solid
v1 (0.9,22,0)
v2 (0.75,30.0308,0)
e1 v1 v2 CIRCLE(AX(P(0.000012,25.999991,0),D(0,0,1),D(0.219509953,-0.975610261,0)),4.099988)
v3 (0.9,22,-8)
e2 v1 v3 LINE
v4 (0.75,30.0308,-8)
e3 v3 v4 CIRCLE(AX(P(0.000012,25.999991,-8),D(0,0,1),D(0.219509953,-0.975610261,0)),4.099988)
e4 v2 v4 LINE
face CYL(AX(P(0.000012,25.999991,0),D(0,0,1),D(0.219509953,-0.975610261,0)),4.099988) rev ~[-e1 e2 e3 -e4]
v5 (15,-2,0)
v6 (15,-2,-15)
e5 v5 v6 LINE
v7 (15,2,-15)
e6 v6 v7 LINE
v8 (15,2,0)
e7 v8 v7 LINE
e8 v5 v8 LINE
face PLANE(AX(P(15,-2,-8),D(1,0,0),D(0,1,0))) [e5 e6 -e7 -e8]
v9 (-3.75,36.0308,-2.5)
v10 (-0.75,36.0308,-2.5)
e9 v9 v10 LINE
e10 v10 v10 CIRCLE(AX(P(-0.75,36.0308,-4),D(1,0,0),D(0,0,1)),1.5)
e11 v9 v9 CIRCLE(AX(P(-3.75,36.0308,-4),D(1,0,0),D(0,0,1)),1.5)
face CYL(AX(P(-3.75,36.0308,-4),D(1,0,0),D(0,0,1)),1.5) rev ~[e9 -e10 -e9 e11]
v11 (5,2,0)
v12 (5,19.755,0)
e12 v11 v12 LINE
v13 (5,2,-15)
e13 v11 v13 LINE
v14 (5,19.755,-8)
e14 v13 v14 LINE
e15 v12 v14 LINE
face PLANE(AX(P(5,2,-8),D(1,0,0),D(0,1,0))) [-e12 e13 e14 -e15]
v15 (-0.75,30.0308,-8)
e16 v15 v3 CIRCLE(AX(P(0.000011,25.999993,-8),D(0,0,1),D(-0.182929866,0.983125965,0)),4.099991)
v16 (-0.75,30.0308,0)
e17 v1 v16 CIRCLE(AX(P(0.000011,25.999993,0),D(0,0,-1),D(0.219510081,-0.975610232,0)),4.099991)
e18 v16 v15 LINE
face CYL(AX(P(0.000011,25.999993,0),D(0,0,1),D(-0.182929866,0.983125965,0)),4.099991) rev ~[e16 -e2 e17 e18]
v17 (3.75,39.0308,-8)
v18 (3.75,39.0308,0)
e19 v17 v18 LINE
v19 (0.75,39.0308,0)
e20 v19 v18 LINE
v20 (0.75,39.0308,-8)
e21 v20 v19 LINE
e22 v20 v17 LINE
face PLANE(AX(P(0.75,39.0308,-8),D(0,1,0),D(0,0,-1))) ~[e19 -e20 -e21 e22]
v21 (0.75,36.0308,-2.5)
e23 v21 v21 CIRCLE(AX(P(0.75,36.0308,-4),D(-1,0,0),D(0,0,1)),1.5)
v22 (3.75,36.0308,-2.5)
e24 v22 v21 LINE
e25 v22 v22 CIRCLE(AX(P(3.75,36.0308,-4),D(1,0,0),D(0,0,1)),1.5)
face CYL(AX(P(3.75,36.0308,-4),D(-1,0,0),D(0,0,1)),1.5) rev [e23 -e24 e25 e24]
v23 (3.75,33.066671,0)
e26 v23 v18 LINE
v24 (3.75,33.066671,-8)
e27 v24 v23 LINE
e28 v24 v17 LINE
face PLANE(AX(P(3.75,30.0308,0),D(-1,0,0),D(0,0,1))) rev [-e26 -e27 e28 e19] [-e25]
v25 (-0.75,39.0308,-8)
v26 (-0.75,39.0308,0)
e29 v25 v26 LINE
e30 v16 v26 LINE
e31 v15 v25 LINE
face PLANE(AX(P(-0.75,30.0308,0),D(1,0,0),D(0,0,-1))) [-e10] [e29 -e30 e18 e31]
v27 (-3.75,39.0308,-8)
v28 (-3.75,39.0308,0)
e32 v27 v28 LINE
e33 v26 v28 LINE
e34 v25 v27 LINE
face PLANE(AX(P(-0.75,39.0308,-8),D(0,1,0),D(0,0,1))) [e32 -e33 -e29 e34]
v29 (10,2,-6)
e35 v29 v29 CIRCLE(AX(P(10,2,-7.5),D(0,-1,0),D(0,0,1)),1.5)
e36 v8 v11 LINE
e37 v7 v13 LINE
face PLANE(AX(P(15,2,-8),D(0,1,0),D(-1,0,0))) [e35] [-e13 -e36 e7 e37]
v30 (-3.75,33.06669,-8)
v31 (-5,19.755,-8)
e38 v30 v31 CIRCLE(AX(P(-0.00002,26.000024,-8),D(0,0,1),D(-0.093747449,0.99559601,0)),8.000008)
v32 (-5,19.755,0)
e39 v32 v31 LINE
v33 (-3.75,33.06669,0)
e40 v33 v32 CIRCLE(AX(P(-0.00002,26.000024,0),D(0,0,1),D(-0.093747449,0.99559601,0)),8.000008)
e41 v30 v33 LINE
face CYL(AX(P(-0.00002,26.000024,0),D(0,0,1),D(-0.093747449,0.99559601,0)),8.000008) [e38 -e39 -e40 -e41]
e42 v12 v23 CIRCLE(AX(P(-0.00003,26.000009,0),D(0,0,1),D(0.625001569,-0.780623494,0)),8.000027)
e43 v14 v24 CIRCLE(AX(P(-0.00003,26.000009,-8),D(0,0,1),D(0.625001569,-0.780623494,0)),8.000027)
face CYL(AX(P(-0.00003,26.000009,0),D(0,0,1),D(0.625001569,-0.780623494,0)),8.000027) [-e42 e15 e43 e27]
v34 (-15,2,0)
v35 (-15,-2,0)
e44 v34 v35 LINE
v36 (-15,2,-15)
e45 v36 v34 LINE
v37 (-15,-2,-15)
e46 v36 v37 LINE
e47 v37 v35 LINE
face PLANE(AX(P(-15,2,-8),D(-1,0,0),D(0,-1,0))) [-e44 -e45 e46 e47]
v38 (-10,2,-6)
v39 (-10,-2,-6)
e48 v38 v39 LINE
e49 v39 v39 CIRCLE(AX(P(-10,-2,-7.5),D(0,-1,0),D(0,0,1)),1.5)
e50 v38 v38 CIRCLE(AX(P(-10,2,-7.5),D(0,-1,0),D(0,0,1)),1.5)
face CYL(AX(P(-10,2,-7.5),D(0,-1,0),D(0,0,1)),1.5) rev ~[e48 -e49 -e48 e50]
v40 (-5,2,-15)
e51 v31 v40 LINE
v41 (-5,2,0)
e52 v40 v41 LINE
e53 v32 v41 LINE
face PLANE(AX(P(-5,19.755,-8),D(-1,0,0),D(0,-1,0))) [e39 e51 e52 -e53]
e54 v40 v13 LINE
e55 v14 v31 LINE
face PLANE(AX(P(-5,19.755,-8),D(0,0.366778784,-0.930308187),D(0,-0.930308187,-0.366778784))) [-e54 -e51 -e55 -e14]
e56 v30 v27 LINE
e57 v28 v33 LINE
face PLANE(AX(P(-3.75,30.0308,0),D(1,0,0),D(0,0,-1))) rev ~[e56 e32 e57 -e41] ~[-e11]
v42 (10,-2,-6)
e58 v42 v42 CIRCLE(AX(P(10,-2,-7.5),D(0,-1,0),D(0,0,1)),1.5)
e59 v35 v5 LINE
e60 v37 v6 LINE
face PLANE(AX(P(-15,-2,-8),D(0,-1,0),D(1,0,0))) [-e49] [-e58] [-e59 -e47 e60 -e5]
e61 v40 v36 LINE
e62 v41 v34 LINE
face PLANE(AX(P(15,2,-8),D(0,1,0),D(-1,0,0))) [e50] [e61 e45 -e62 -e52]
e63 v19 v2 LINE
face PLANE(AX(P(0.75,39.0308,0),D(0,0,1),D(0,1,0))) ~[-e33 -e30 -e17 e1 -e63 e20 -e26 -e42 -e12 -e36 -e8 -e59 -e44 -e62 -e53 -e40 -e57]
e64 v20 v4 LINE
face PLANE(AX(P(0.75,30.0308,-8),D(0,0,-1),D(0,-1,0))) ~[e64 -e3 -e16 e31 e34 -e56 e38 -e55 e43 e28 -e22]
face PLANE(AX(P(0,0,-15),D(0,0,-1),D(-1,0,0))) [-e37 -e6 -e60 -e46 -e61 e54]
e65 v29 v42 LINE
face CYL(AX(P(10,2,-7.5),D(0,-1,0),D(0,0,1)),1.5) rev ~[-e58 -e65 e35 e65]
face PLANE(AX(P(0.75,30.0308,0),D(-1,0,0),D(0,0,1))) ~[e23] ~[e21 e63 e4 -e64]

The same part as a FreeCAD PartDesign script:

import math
import FreeCAD as App
import Part
import Sketcher
from FreeCAD import Vector
Q = App.Units.Quantity

doc = App.newDocument("Part")
body = doc.addObject("PartDesign::Body", "Body")

sketch1 = doc.addObject("Sketcher::SketchObject", "Sketch")
body.addObject(sketch1)
sketch1.AttachmentSupport = (doc.XY_Plane, [""])
sketch1.MapMode = "FlatFace"
sketch1.addGeometry([
    Part.LineSegment(Vector(-15, 2, 0), Vector(-15, -2, 0)),
    Part.LineSegment(Vector(-15, -2, 0), Vector(15, -2, 0)),
    Part.LineSegment(Vector(15, -2, 0), Vector(15, 2, 0)),
    Part.LineSegment(Vector(15, 2, 0), Vector(5, 2, 0)),
    Part.LineSegment(Vector(5, 2, 0), Vector(5, 19.755, 0)),
    Part.ArcOfCircle(Part.Circle(Vector(0, 26, 0), Vector(0, 0, 1), 8.000034), math.radians(-51.317822), math.radians(84.620644)),
    Part.LineSegment(Vector(0.75, 33.9648, 0), Vector(0.75, 30.0308, 0)),
    Part.ArcOfCircle(Part.Circle(Vector(0, 26, 0), Vector(0, 0, 1), 4.099982), math.radians(-77.319617), math.radians(79.459666)),
    Part.ArcOfCircle(Part.Circle(Vector(0, 26, 0), Vector(0, 0, 1), 4.099982), math.radians(100.540334), math.radians(282.680383)),
    Part.LineSegment(Vector(-0.75, 30.0308, 0), Vector(-0.75, 33.9648, 0)),
    Part.ArcOfCircle(Part.Circle(Vector(0, 26, 0), Vector(0, 0, 1), 8.000002), math.radians(95.379356), math.radians(231.317822)),
    Part.LineSegment(Vector(-5, 19.755, 0), Vector(-5, 2, 0)),
    Part.LineSegment(Vector(-5, 2, 0), Vector(-15, 2, 0)),
], False)
sketch1.addConstraint([
    Sketcher.Constraint("Coincident", 0, 2, 1, 1),
    Sketcher.Constraint("Coincident", 1, 2, 2, 1),
    Sketcher.Constraint("Coincident", 2, 2, 3, 1),
    Sketcher.Constraint("Coincident", 3, 2, 4, 1),
    Sketcher.Constraint("Coincident", 4, 2, 5, 1),
    Sketcher.Constraint("Coincident", 5, 2, 6, 1),
    Sketcher.Constraint("Coincident", 6, 2, 7, 2),
    Sketcher.Constraint("Tangent", 7, 1, 8, 2),
    Sketcher.Constraint("Coincident", 8, 1, 9, 1),
    Sketcher.Constraint("Coincident", 9, 2, 10, 1),
    Sketcher.Constraint("Coincident", 10, 2, 11, 1),
    Sketcher.Constraint("Coincident", 11, 2, 12, 1),
    Sketcher.Constraint("Coincident", 12, 2, 0, 1),
    Sketcher.Constraint("Vertical", 0),
    Sketcher.Constraint("Horizontal", 1),
    Sketcher.Constraint("Vertical", 2),
    Sketcher.Constraint("Horizontal", 3),
    Sketcher.Constraint("Vertical", 4),
    Sketcher.Constraint("Vertical", 6),
    Sketcher.Constraint("Vertical", 9),
    Sketcher.Constraint("Vertical", 11),
    Sketcher.Constraint("Horizontal", 12),
    Sketcher.Constraint("Coincident", 7, 3, 5, 3),
    Sketcher.Constraint("Coincident", 10, 3, 5, 3),
    Sketcher.Constraint("Equal", 7, 8),
    Sketcher.Constraint("Equal", 5, 10),
    Sketcher.Constraint("Symmetric", 0, 2, 2, 2, -1, 1),
    Sketcher.Constraint("Symmetric", 6, 2, 8, 1, -2),
    Sketcher.Constraint("Symmetric", 3, 2, 11, 2, -2),
    Sketcher.Constraint("Radius", 5, Q("8 mm")),
    Sketcher.Constraint("Radius", 7, Q("4.1 mm")),
    Sketcher.Constraint("DistanceX", 1, 1, 1, 2, Q("30 mm")),
    Sketcher.Constraint("DistanceX", 3, 2, 3, 1, Q("10 mm")),
    Sketcher.Constraint("DistanceY", 0, 2, 0, 1, Q("4 mm")),
    Sketcher.Constraint("DistanceY", 7, 1, 5, 3, Q("4 mm")),
    Sketcher.Constraint("DistanceY", 12, 2, 7, 1, Q("20 mm")),
    Sketcher.Constraint("DistanceX", 8, 1, 6, 2, Q("1.5 mm")),
])
pad1 = doc.addObject("PartDesign::Pad", "Pad")
body.addObject(pad1)
pad1.Profile = sketch1
pad1.Length = 8
pad1.Reversed = True

sketch2 = doc.addObject("Sketcher::SketchObject", "Sketch001")
body.addObject(sketch2)
sketch2.AttachmentSupport = (doc.XY_Plane, [""])
sketch2.MapMode = "FlatFace"
sketch2.AttachmentOffset = App.Placement(Vector(0, 0, -8), App.Rotation())
sketch2.addGeometry([
    Part.LineSegment(Vector(-15, 2, 0), Vector(15, 2, 0)),
    Part.LineSegment(Vector(15, 2, 0), Vector(15, -2, 0)),
    Part.LineSegment(Vector(15, -2, 0), Vector(-15, -2, 0)),
    Part.LineSegment(Vector(-15, -2, 0), Vector(-15, 2, 0)),
], False)
sketch2.addConstraint([
    Sketcher.Constraint("Coincident", 0, 2, 1, 1),
    Sketcher.Constraint("Coincident", 1, 2, 2, 1),
    Sketcher.Constraint("Coincident", 2, 2, 3, 1),
    Sketcher.Constraint("Coincident", 3, 2, 0, 1),
    Sketcher.Constraint("Horizontal", 0),
    Sketcher.Constraint("Vertical", 1),
    Sketcher.Constraint("Horizontal", 2),
    Sketcher.Constraint("Vertical", 3),
    Sketcher.Constraint("Symmetric", 0, 2, 2, 2, -1, 1),
    Sketcher.Constraint("DistanceX", 0, 1, 0, 2, Q("30 mm")),
    Sketcher.Constraint("DistanceY", 1, 2, 1, 1, Q("4 mm")),
])
pad2 = doc.addObject("PartDesign::Pad", "Pad001")
body.addObject(pad2)
pad2.Profile = sketch2
pad2.Length = 7
pad2.Reversed = True

sketch3 = doc.addObject("Sketcher::SketchObject", "Sketch002")
body.addObject(sketch3)
sketch3.AttachmentSupport = (doc.YZ_Plane, [""])
sketch3.MapMode = "FlatFace"
sketch3.AttachmentOffset = App.Placement(Vector(0, 0, -0.75), App.Rotation())
sketch3.addGeometry([
    Part.LineSegment(Vector(39.0308, 0, 0), Vector(30.0308, 0, 0)),
    Part.LineSegment(Vector(30.0308, 0, 0), Vector(30.0308, -8, 0)),
    Part.LineSegment(Vector(30.0308, -8, 0), Vector(39.0308, -8, 0)),
    Part.LineSegment(Vector(39.0308, -8, 0), Vector(39.0308, 0, 0)),
], False)
sketch3.addConstraint([
    Sketcher.Constraint("Coincident", 0, 2, 1, 1),
    Sketcher.Constraint("Coincident", 1, 2, 2, 1),
    Sketcher.Constraint("Coincident", 2, 2, 3, 1),
    Sketcher.Constraint("Coincident", 3, 2, 0, 1),
    Sketcher.Constraint("Horizontal", 0),
    Sketcher.Constraint("Vertical", 1),
    Sketcher.Constraint("Horizontal", 2),
    Sketcher.Constraint("Vertical", 3),
    Sketcher.Constraint("PointOnObject", 0, 2, -1),
    Sketcher.Constraint("DistanceX", 0, 2, 0, 1, Q("9 mm")),
    Sketcher.Constraint("DistanceY", 1, 2, 1, 1, Q("8 mm")),
    Sketcher.Constraint("DistanceX", -1, 1, 0, 2, Q("30.0308 mm")),
])
pad3 = doc.addObject("PartDesign::Pad", "Pad002")
body.addObject(pad3)
pad3.Profile = sketch3
pad3.Length = 3
pad3.Reversed = True

sketch4 = doc.addObject("Sketcher::SketchObject", "Sketch003")
body.addObject(sketch4)
sketch4.AttachmentSupport = (doc.YZ_Plane, [""])
sketch4.MapMode = "FlatFace"
sketch4.AttachmentOffset = App.Placement(Vector(0, 0, -3.75), App.Rotation())
sketch4.addGeometry(Part.Circle(Vector(36.0308, -4, 0), Vector(0, 0, 1), 1.5), False)
sketch4.addConstraint([
    Sketcher.Constraint("Diameter", 0, Q("3 mm")),
    Sketcher.Constraint("DistanceY", 0, 3, -1, 1, Q("4 mm")),
    Sketcher.Constraint("DistanceX", -1, 1, 0, 3, Q("36.0308 mm")),
])
doc.recompute()
hole = doc.addObject("PartDesign::Hole", "Hole")
body.addObject(hole)
hole.Profile = sketch4
hole.ThreadType = "None"
hole.Diameter = 3
hole.DepthType = "Dimension"
hole.Depth = 8
hole.DrillPoint = "Angled"
hole.DrillPointAngle = 118
hole.Reversed = True
doc.recompute()

mirrored = doc.addObject("PartDesign::Mirrored", "Mirrored")
body.addObject(mirrored)
mirrored.Originals = [pad3, hole]
mirrored.MirrorPlane = (doc.YZ_Plane, [""])
body.Tip = mirrored

sketch5 = doc.addObject("Sketcher::SketchObject", "Sketch004")
body.addObject(sketch5)
sketch5.AttachmentSupport = (doc.XY_Plane, [""])
sketch5.MapMode = "FlatFace"
sketch5.AttachmentOffset = App.Placement(Vector(0, 0, -8), App.Rotation())
sketch5.addGeometry([
    Part.LineSegment(Vector(-5, 19.755, 0), Vector(5, 19.755, 0)),
    Part.LineSegment(Vector(5, 19.755, 0), Vector(5, 2, 0)),
    Part.LineSegment(Vector(5, 2, 0), Vector(-5, 2, 0)),
    Part.LineSegment(Vector(-5, 2, 0), Vector(-5, 19.755, 0)),
], False)
sketch5.addConstraint([
    Sketcher.Constraint("Coincident", 0, 2, 1, 1),
    Sketcher.Constraint("Coincident", 1, 2, 2, 1),
    Sketcher.Constraint("Coincident", 2, 2, 3, 1),
    Sketcher.Constraint("Coincident", 3, 2, 0, 1),
    Sketcher.Constraint("Horizontal", 0),
    Sketcher.Constraint("Vertical", 1),
    Sketcher.Constraint("Horizontal", 2),
    Sketcher.Constraint("Vertical", 3),
    Sketcher.Constraint("DistanceX", 0, 1, 0, 2, Q("10 mm")),
    Sketcher.Constraint("DistanceX", -1, 1, 0, 2, Q("5 mm")),
    Sketcher.Constraint("DistanceY", -1, 1, 1, 2, Q("2 mm")),
    Sketcher.Constraint("DistanceY", 1, 2, 1, 1, Q("17.755 mm")),
])
pad4 = doc.addObject("PartDesign::Pad", "Pad003")
body.addObject(pad4)
pad4.Profile = sketch5
pad4.Length = 7
pad4.Reversed = True

sketch6 = doc.addObject("Sketcher::SketchObject", "Sketch005")
body.addObject(sketch6)
sketch6.AttachmentSupport = (doc.YZ_Plane, [""])
sketch6.MapMode = "FlatFace"
sketch6.AttachmentOffset = App.Placement(Vector(0, 0, -5), App.Rotation())
sketch6.addGeometry([
    Part.LineSegment(Vector(2, -15, 0), Vector(19.755, -8, 0)),
    Part.LineSegment(Vector(19.755, -8, 0), Vector(19.755, -15, 0)),
    Part.LineSegment(Vector(19.755, -15, 0), Vector(2, -15, 0)),
], False)
sketch6.addConstraint([
    Sketcher.Constraint("Coincident", 0, 2, 1, 1),
    Sketcher.Constraint("Coincident", 1, 2, 2, 1),
    Sketcher.Constraint("Coincident", 2, 2, 0, 1),
    Sketcher.Constraint("Vertical", 1),
    Sketcher.Constraint("Horizontal", 2),
    Sketcher.Constraint("DistanceY", 1, 2, 1, 1, Q("7 mm")),
    Sketcher.Constraint("DistanceY", 0, 2, -1, 1, Q("8 mm")),
    Sketcher.Constraint("DistanceX", -1, 1, 2, 2, Q("2 mm")),
    Sketcher.Constraint("DistanceX", 2, 2, 2, 1, Q("17.755 mm")),
])
pocket1 = doc.addObject("PartDesign::Pocket", "Pocket")
body.addObject(pocket1)
pocket1.Profile = sketch6
pocket1.Type = "ThroughAll"
pocket1.Reversed = True

sketch7 = doc.addObject("Sketcher::SketchObject", "Sketch006")
body.addObject(sketch7)
sketch7.AttachmentSupport = (doc.XZ_Plane, [""])
sketch7.MapMode = "FlatFace"
sketch7.AttachmentOffset = App.Placement(Vector(0, 0, -2), App.Rotation())
sketch7.addGeometry([
    Part.Circle(Vector(-10, -7.5, 0), Vector(0, 0, 1), 1.5),
    Part.Circle(Vector(10, -7.5, 0), Vector(0, 0, 1), 1.5),
], False)
sketch7.addConstraint([
    Sketcher.Constraint("Equal", 0, 1),
    Sketcher.Constraint("Symmetric", 0, 3, 1, 3, -2),
    Sketcher.Constraint("Diameter", 0, Q("3 mm")),
    Sketcher.Constraint("DistanceX", 0, 3, -1, 1, Q("10 mm")),
    Sketcher.Constraint("DistanceY", 0, 3, -1, 1, Q("7.5 mm")),
])
doc.recompute()
hole2 = doc.addObject("PartDesign::Hole", "Hole001")
body.addObject(hole2)
hole2.Profile = sketch7
hole2.ThreadType = "None"
hole2.Diameter = 3
hole2.DepthType = "Dimension"
hole2.Depth = 8
hole2.DrillPoint = "Angled"
hole2.DrillPointAngle = 118
hole2.Reversed = True

doc.recompute()
